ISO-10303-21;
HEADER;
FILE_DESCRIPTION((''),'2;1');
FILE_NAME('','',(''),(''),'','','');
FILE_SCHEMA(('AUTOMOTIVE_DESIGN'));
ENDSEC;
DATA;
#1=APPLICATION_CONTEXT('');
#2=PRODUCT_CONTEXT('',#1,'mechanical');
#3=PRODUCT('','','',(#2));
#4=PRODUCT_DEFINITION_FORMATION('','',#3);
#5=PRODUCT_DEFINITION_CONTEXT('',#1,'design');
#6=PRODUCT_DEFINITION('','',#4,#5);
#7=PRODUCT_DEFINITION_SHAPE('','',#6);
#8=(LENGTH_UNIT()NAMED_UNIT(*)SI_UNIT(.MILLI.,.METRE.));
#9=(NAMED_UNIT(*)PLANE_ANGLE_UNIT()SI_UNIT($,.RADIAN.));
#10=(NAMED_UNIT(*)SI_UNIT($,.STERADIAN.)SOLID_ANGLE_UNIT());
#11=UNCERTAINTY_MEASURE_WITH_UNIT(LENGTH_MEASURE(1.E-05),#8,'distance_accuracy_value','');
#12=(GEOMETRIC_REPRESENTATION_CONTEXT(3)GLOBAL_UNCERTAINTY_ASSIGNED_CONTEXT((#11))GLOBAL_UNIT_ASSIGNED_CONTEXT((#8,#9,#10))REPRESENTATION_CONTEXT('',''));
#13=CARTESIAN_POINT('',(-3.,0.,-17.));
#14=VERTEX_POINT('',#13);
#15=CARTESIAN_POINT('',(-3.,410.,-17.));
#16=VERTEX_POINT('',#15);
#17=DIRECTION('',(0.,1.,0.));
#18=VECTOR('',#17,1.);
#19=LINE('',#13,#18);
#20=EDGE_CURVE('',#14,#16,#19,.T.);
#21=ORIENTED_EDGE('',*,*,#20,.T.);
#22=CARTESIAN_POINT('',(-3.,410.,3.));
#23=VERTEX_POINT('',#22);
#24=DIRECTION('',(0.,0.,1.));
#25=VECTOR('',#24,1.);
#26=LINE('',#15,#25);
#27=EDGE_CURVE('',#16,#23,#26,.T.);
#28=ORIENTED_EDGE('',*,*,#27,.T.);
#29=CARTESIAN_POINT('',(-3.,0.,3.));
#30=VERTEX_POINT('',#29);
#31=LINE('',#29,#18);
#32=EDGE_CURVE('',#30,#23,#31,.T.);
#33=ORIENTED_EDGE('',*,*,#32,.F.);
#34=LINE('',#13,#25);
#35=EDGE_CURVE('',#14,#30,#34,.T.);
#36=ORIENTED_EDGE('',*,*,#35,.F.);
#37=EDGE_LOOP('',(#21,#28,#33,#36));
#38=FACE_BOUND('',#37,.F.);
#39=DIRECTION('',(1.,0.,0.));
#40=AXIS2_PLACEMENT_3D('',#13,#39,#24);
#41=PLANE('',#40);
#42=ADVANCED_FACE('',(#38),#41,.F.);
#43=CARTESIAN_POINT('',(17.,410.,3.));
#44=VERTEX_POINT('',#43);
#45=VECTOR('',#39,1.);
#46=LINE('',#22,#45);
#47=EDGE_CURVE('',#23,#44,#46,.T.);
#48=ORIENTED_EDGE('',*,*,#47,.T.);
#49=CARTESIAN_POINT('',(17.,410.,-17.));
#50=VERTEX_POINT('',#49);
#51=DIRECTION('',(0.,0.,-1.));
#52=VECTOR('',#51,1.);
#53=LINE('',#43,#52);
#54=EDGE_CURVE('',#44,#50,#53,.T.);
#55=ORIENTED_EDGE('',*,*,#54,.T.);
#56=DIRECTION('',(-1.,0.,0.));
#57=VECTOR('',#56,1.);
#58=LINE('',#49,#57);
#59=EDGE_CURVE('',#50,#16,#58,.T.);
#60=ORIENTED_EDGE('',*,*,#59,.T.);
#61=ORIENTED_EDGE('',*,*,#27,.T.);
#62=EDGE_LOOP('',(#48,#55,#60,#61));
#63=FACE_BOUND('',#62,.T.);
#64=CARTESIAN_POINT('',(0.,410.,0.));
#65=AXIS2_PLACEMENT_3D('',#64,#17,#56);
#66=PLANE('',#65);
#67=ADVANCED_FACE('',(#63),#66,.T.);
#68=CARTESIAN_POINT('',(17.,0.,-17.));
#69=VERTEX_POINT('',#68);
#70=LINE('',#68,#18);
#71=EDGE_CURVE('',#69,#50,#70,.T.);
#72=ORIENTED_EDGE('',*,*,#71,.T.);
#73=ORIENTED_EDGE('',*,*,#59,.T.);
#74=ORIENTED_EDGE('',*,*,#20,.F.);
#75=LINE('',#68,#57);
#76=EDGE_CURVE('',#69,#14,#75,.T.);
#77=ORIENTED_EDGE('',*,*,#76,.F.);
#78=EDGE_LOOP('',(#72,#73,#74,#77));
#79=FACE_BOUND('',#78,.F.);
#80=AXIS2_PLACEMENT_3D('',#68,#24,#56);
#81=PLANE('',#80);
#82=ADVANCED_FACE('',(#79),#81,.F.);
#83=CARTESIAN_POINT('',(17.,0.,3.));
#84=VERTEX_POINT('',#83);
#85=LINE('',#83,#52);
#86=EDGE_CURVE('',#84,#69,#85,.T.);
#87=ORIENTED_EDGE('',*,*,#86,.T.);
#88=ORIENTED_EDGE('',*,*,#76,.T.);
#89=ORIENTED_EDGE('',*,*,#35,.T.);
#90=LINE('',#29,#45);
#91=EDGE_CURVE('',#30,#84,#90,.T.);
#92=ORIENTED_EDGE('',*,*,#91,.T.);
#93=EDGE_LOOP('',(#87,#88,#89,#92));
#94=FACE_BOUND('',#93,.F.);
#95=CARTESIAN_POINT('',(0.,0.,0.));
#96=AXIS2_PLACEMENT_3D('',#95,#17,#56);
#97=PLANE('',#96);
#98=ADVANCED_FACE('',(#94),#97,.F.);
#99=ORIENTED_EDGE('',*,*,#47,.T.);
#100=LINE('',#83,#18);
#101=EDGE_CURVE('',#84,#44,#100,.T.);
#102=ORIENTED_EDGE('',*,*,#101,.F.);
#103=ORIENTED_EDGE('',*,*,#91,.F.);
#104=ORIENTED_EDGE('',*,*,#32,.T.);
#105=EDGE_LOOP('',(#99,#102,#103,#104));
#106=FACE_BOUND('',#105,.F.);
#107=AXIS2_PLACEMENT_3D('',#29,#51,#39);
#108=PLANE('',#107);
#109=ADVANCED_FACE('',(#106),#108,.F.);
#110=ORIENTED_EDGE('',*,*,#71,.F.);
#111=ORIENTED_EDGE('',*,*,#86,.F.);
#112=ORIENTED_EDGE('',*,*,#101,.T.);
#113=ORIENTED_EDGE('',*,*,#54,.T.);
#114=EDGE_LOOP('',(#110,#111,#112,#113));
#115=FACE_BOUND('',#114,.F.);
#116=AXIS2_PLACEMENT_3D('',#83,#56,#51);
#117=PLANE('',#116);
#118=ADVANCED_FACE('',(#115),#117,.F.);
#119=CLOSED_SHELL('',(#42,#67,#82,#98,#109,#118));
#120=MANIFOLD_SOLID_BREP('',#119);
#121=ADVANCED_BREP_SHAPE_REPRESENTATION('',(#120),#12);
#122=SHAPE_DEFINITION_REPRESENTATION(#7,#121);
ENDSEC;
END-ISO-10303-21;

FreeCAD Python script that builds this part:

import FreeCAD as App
import Part
import Sketcher

V = App.Vector
Q = App.Units.Quantity


def add_polygon(sketch, points):
    """Adds a closed chain of lines whose ends are joined by coincident constraints."""
    first, n = sketch.GeometryCount, len(points)
    for a, b in zip(points, points[1:] + points[:1]):
        sketch.addGeometry(Part.LineSegment(App.Vector(*a, 0), App.Vector(*b, 0)), False)
    for i in range(n):
        sketch.addConstraint(Sketcher.Constraint("Coincident", first + i, 2, first + (i + 1) % n, 1))

doc = App.newDocument("Part")
body = doc.addObject("PartDesign::Body", "Body")

# Sketch on XZ plane
sketch1 = body.newObject("Sketcher::SketchObject", "Sketch")
sketch1.AttachmentSupport = (doc.getObject("XZ_Plane"), [""])
sketch1.MapMode = "FlatFace"
add_polygon(sketch1, [(-3, -17), (-3, 3), (17, 3), (17, -17)])  # lines 0-3
sketch1.addConstraint([
    Sketcher.Constraint("Vertical", 0),
    Sketcher.Constraint("Horizontal", 1),
    Sketcher.Constraint("Vertical", 2),
    Sketcher.Constraint("Horizontal", 3),
    Sketcher.Constraint("Equal", 3, 0),
    Sketcher.Constraint("DistanceX", 1, 1, 1, 2, Q("20 mm")),
    Sketcher.Constraint("DistanceX", 0, 2, -1, 1, Q("3 mm")),
    Sketcher.Constraint("DistanceY", -1, 1, 0, 2, Q("3 mm")),
])
pad1 = body.newObject("PartDesign::Pad", "Pad")
pad1.Profile = sketch1
pad1.Length = 410
pad1.Reversed = True

doc.recompute()
